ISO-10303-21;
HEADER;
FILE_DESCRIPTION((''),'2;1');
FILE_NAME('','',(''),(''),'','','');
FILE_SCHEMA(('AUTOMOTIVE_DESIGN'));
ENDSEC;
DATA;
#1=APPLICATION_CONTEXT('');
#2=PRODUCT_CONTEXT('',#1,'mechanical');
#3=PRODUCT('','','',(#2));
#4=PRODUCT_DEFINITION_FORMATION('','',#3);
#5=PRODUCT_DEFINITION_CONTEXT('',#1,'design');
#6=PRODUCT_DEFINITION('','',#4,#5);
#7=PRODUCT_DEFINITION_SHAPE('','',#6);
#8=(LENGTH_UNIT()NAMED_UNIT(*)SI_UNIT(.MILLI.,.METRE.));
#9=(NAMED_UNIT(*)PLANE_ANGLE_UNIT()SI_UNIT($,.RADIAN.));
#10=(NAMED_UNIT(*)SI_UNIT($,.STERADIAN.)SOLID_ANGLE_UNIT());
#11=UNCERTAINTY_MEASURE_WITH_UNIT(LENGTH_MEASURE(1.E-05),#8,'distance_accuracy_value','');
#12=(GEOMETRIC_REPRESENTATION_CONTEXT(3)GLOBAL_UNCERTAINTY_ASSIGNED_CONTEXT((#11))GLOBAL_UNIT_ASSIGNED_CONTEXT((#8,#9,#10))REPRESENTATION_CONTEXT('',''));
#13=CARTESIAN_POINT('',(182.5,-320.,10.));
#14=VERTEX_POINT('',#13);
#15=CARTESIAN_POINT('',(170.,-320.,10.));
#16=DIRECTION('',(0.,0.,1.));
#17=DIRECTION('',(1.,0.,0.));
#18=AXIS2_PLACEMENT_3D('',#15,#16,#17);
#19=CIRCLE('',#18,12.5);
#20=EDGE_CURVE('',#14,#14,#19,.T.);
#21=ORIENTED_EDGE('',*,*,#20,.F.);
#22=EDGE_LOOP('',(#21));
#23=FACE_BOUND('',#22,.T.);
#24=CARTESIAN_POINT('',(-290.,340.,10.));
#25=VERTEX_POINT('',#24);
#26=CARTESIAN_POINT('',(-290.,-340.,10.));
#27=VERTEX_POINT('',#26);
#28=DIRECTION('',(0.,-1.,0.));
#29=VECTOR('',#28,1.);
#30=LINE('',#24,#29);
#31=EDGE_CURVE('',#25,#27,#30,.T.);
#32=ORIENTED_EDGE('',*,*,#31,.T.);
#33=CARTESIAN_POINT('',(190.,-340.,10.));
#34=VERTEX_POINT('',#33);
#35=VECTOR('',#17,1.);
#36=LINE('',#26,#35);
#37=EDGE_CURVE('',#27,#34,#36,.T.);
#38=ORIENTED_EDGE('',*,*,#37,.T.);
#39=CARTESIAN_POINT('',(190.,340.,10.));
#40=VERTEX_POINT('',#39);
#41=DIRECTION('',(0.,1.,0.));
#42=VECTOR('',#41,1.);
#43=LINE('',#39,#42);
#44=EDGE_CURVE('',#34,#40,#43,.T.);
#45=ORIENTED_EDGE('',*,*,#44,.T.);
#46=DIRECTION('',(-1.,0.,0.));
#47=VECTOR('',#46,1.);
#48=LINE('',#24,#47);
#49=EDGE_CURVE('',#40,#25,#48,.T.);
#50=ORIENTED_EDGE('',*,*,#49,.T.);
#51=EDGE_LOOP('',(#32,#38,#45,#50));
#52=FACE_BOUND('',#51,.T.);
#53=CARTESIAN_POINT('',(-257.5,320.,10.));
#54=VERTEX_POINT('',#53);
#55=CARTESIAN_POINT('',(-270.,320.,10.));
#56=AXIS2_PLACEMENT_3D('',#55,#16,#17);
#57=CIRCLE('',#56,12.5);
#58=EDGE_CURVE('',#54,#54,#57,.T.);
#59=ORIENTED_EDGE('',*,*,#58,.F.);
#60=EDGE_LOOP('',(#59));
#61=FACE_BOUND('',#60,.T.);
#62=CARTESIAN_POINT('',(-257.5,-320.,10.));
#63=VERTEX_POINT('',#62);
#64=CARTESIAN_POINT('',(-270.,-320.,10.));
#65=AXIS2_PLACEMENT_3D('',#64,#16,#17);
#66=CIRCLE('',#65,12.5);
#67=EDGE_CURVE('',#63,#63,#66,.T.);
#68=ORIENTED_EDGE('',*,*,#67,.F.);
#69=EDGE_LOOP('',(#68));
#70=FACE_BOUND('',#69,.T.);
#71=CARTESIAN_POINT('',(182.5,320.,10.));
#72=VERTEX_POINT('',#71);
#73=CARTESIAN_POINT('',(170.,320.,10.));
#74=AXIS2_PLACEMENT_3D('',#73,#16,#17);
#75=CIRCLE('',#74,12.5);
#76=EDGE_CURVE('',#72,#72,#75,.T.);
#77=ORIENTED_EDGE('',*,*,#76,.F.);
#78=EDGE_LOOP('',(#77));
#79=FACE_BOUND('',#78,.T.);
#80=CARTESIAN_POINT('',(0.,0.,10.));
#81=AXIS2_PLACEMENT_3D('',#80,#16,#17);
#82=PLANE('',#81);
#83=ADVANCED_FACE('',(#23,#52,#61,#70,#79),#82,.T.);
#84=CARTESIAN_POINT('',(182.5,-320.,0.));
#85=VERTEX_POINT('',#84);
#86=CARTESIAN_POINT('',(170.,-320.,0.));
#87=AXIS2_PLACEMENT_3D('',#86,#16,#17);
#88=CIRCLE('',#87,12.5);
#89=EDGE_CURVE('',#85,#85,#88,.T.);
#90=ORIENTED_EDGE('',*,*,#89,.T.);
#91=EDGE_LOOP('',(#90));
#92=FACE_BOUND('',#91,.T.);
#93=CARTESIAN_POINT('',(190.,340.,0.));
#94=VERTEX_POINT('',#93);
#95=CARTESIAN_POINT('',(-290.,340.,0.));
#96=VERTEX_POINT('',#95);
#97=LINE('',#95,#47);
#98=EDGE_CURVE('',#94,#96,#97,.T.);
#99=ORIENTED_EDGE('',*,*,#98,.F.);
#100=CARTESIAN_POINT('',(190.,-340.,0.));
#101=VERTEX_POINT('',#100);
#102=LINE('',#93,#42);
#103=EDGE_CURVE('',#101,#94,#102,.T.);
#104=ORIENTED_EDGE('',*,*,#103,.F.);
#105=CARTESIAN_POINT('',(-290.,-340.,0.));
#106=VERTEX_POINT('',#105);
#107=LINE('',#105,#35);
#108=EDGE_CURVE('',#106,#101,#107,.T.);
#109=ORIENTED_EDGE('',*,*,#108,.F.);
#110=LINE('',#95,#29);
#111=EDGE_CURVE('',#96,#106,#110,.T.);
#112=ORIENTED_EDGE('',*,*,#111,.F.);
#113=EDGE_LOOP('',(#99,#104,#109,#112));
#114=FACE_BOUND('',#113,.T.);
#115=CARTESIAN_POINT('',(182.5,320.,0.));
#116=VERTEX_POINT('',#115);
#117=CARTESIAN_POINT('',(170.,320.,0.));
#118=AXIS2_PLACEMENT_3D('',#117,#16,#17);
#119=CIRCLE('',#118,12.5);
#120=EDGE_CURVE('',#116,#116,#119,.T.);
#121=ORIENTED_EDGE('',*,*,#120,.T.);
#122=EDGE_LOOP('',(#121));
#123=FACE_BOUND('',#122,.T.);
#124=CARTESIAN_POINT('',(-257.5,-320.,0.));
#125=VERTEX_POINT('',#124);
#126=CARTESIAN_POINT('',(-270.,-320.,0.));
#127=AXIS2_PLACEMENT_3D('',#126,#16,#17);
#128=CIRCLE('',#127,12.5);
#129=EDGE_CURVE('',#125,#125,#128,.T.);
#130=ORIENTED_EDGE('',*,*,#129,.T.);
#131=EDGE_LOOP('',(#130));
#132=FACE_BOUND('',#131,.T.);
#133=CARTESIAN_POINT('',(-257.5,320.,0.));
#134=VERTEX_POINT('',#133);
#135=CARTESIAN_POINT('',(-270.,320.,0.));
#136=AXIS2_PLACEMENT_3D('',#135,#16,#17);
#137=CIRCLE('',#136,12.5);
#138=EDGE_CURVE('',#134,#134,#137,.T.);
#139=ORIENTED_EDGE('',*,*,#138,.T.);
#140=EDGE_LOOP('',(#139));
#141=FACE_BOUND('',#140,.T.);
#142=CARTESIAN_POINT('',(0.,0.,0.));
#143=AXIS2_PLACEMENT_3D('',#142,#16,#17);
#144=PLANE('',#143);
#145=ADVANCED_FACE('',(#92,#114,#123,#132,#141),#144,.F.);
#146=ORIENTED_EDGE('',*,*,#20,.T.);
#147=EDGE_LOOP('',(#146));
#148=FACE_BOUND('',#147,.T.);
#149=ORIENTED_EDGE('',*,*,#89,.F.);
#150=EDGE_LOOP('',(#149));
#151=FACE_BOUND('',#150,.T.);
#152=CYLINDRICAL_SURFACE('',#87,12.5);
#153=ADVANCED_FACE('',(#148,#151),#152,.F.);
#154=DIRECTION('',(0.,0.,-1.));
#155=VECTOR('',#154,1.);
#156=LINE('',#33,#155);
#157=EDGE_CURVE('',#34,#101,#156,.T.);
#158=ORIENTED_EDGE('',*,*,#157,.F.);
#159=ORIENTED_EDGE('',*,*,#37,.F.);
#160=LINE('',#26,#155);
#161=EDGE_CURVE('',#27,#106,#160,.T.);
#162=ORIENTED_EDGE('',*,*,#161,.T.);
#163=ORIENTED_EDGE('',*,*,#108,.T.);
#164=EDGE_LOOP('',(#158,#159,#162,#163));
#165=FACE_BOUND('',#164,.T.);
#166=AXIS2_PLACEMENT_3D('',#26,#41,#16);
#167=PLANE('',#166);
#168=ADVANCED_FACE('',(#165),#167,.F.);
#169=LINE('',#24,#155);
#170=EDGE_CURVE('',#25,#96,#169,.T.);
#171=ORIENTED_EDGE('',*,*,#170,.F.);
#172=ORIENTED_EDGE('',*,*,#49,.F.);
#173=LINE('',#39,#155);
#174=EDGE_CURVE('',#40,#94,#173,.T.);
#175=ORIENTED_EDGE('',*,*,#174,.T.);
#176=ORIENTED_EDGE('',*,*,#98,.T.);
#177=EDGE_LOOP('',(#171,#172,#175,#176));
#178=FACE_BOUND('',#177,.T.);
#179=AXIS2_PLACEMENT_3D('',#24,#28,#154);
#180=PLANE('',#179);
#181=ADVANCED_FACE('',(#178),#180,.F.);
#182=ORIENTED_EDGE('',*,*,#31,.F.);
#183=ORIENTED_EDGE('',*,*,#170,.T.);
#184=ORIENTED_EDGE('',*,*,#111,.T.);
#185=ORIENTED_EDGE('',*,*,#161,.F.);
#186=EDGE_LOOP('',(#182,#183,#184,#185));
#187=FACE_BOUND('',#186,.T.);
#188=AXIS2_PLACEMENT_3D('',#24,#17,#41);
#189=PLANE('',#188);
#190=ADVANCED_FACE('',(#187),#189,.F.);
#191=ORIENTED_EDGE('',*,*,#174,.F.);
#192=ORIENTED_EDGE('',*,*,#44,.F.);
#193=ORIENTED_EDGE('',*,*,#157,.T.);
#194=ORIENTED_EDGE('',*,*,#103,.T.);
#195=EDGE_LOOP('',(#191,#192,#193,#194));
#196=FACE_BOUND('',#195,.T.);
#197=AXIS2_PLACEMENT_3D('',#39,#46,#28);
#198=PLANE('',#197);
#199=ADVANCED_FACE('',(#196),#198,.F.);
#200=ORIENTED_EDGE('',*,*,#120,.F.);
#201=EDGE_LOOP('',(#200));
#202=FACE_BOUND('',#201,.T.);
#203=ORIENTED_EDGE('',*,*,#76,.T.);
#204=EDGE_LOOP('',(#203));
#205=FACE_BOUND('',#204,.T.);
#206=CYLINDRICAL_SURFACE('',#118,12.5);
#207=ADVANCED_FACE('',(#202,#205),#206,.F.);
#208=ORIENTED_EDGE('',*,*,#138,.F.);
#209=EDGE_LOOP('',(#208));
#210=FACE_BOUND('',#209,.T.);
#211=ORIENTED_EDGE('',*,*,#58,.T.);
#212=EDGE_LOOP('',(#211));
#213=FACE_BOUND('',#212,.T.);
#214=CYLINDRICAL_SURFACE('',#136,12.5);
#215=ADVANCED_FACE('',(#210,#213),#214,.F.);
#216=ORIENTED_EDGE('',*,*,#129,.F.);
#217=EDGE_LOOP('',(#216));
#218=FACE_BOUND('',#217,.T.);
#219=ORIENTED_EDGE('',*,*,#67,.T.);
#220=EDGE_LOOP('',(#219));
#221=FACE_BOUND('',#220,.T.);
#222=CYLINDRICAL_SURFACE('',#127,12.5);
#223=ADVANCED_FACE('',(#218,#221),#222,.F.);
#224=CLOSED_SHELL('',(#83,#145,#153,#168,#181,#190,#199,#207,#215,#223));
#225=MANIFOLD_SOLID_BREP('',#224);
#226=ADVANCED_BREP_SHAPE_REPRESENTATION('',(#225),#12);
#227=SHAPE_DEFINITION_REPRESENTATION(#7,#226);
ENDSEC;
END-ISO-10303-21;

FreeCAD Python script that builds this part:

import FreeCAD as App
import Part
import Sketcher
from FreeCAD import Vector

doc = App.newDocument("Part")
body = doc.addObject("PartDesign::Body", "Body")

sketch1 = body.newObject("Sketcher::SketchObject", "Sketch")
sketch1.AttachmentSupport = (doc.getObject("XY_Plane"), [""])
sketch1.MapMode = "FlatFace"
sketch1.addGeometry([
    Part.LineSegment(Vector(-290, 340, 0), Vector(-290, -340, 0)),
    Part.LineSegment(Vector(-290, -340, 0), Vector(190, -340, 0)),
    Part.LineSegment(Vector(190, -340, 0), Vector(190, 340, 0)),
    Part.LineSegment(Vector(190, 340, 0), Vector(-290, 340, 0)),
], False)
sketch1.addConstraint([
    Sketcher.Constraint("Coincident", 0, 2, 1, 1),
    Sketcher.Constraint("Coincident", 1, 2, 2, 1),
    Sketcher.Constraint("Coincident", 2, 2, 3, 1),
    Sketcher.Constraint("Coincident", 3, 2, 0, 1),
    Sketcher.Constraint("Vertical", 0),
    Sketcher.Constraint("Horizontal", 1),
    Sketcher.Constraint("Vertical", 2),
    Sketcher.Constraint("Horizontal", 3),
    Sketcher.Constraint("DistanceX", 1, 1, 1, 2, 480.0),
    Sketcher.Constraint("DistanceY", 0, 2, 0, 1, 680.0),
    Sketcher.Constraint("DistanceX", 0, 2, -1, 1, 290.0),
    Sketcher.Constraint("DistanceY", 0, 2, -1, 1, 340.0),
])
pad1 = body.newObject("PartDesign::Pad", "Pad")
pad1.Profile = sketch1
pad1.Length = 10

sketch2 = body.newObject("Sketcher::SketchObject", "Sketch001")
sketch2.AttachmentSupport = (doc.getObject("XY_Plane"), [""])
sketch2.MapMode = "FlatFace"
sketch2.AttachmentOffset = App.Placement(Vector(0, 0, 10), App.Rotation())
sketch2.addGeometry([
    Part.Circle(Vector(170, 320, 0), Vector(0, 0, 1), 12),
    Part.Circle(Vector(-270, 320, 0), Vector(0, 0, 1), 12),
    Part.Circle(Vector(-270, -320, 0), Vector(0, 0, 1), 12),
    Part.Circle(Vector(170, -320, 0), Vector(0, 0, 1), 12),
], False)
sketch2.addConstraint([
    Sketcher.Constraint("Equal", 0, 1),
    Sketcher.Constraint("Equal", 1, 2),
    Sketcher.Constraint("Equal", 2, 3),
    Sketcher.Constraint("Symmetric", 1, 3, 2, 3, -1),
    Sketcher.Constraint("Symmetric", 0, 3, 3, 3, -1),
    Sketcher.Constraint("Horizontal", 0, 3, 1, 3),
    Sketcher.Constraint("Diameter", 0, 25.0),
    Sketcher.Constraint("DistanceX", -1, 1, 0, 3, 170.0),
    Sketcher.Constraint("DistanceY", -1, 1, 0, 3, 320.0),
    Sketcher.Constraint("DistanceX", 1, 3, -1, 1, 270.0),
])
pocket1 = body.newObject("PartDesign::Pocket", "Pocket")
pocket1.Profile = sketch2
pocket1.Length = 10

doc.recompute()
